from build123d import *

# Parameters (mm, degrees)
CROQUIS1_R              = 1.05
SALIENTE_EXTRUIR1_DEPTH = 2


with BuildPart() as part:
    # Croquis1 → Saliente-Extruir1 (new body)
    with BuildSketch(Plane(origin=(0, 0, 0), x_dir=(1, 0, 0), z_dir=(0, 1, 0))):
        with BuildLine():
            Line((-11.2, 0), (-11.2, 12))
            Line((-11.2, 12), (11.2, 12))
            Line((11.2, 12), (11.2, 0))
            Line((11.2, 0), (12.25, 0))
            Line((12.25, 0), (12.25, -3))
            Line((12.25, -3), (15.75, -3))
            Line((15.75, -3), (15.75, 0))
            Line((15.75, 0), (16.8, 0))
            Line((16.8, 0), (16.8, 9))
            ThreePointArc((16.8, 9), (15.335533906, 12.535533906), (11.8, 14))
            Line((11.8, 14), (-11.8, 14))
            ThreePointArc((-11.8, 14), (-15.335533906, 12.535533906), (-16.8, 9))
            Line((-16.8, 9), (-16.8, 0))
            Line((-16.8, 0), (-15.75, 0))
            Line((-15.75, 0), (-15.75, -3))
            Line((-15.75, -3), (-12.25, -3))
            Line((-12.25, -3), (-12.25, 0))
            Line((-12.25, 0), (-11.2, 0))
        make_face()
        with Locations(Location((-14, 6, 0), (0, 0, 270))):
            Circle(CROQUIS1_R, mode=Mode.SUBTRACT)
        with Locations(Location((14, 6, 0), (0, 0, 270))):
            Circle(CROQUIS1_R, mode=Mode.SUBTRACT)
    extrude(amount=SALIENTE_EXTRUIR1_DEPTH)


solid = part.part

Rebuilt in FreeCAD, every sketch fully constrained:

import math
import FreeCAD as App
import Part
import Sketcher
from FreeCAD import Vector
Q = App.Units.Quantity

doc = App.newDocument("Part")
params = doc.addObject("Spreadsheet::Sheet", "Params")
for row, (alias, value) in enumerate([
    ("sketch1_radius", "5 mm"),
    ("sketch1_diameter", "2.1 mm"),
    ("sketch1_height", "12 mm"),
    ("sketch1_height2", "3 mm"),
    ("sketch1_height3", "9 mm"),
    ("pad1_length", "2 mm"),
], start=1):
    params.set(f"A{row}", alias)
    params.set(f"B{row}", "=" + value)
    params.setAlias(f"B{row}", alias)

body = doc.addObject("PartDesign::Body", "Body")

sketch1 = doc.addObject("Sketcher::SketchObject", "Sketch")
body.addObject(sketch1)
sketch1.AttachmentSupport = (doc.XZ_Plane, [""])
sketch1.MapMode = "FlatFace"
sketch1.addGeometry(Part.LineSegment(Vector(-11.2, 0, 0), Vector(-11.2, -12, 0)), False)
sketch1.addGeometry(Part.LineSegment(Vector(-11.2, -12, 0), Vector(11.2, -12, 0)), False)
sketch1.addGeometry(Part.LineSegment(Vector(11.2, -12, 0), Vector(11.2, 0, 0)), False)
sketch1.addGeometry(Part.LineSegment(Vector(11.2, 0, 0), Vector(12.25, 0, 0)), False)
sketch1.addGeometry(Part.LineSegment(Vector(12.25, 0, 0), Vector(12.25, 3, 0)), False)
sketch1.addGeometry(Part.LineSegment(Vector(12.25, 3, 0), Vector(15.75, 3, 0)), False)
sketch1.addGeometry(Part.LineSegment(Vector(15.75, 3, 0), Vector(15.75, 0, 0)), False)
sketch1.addGeometry(Part.LineSegment(Vector(15.75, 0, 0), Vector(16.8, 0, 0)), False)
sketch1.addGeometry(Part.LineSegment(Vector(16.8, 0, 0), Vector(16.8, -9, 0)), False)
sketch1.addGeometry(Part.ArcOfCircle(Part.Circle(Vector(11.8, -9, 0), Vector(0, 0, 1), 5), math.radians(-90), math.radians(0)), False)
sketch1.addGeometry(Part.LineSegment(Vector(11.8, -14, 0), Vector(-11.8, -14, 0)), False)
sketch1.addGeometry(Part.ArcOfCircle(Part.Circle(Vector(-11.8, -9, 0), Vector(0, 0, 1), 5), math.radians(180), math.radians(270)), False)
sketch1.addGeometry(Part.LineSegment(Vector(-16.8, -9, 0), Vector(-16.8, 0, 0)), False)
sketch1.addGeometry(Part.LineSegment(Vector(-16.8, 0, 0), Vector(-15.75, 0, 0)), False)
sketch1.addGeometry(Part.LineSegment(Vector(-15.75, 0, 0), Vector(-15.75, 3, 0)), False)
sketch1.addGeometry(Part.LineSegment(Vector(-15.75, 3, 0), Vector(-12.25, 3, 0)), False)
sketch1.addGeometry(Part.LineSegment(Vector(-12.25, 3, 0), Vector(-12.25, 0, 0)), False)
sketch1.addGeometry(Part.LineSegment(Vector(-12.25, 0, 0), Vector(-11.2, 0, 0)), False)
sketch1.addGeometry(Part.Circle(Vector(-14, -6, 0), Vector(0, 0, 1), 1.05), False)
sketch1.addGeometry(Part.Circle(Vector(14, -6, 0), Vector(0, 0, 1), 1.05), False)
sketch1.addConstraint(Sketcher.Constraint("Coincident", 0, 2, 1, 1))
sketch1.addConstraint(Sketcher.Constraint("Coincident", 1, 2, 2, 1))
sketch1.addConstraint(Sketcher.Constraint("Coincident", 2, 2, 3, 1))
sketch1.addConstraint(Sketcher.Constraint("Coincident", 3, 2, 4, 1))
sketch1.addConstraint(Sketcher.Constraint("Coincident", 4, 2, 5, 1))
sketch1.addConstraint(Sketcher.Constraint("Coincident", 5, 2, 6, 1))
sketch1.addConstraint(Sketcher.Constraint("Coincident", 6, 2, 7, 1))
sketch1.addConstraint(Sketcher.Constraint("Coincident", 7, 2, 8, 1))
sketch1.addConstraint(Sketcher.Constraint("Tangent", 8, 2, 9, 2))
sketch1.addConstraint(Sketcher.Constraint("Tangent", 9, 1, 10, 1))
sketch1.addConstraint(Sketcher.Constraint("Tangent", 10, 2, 11, 2))
sketch1.addConstraint(Sketcher.Constraint("Tangent", 11, 1, 12, 1))
sketch1.addConstraint(Sketcher.Constraint("Coincident", 12, 2, 13, 1))
sketch1.addConstraint(Sketcher.Constraint("Coincident", 13, 2, 14, 1))
sketch1.addConstraint(Sketcher.Constraint("Coincident", 14, 2, 15, 1))
sketch1.addConstraint(Sketcher.Constraint("Coincident", 15, 2, 16, 1))
sketch1.addConstraint(Sketcher.Constraint("Coincident", 16, 2, 17, 1))
sketch1.addConstraint(Sketcher.Constraint("Coincident", 17, 2, 0, 1))
sketch1.addConstraint(Sketcher.Constraint("Vertical", 0))
sketch1.addConstraint(Sketcher.Constraint("Horizontal", 1))
sketch1.addConstraint(Sketcher.Constraint("Vertical", 2))
sketch1.addConstraint(Sketcher.Constraint("Horizontal", 3))
sketch1.addConstraint(Sketcher.Constraint("Vertical", 4))
sketch1.addConstraint(Sketcher.Constraint("Horizontal", 5))
sketch1.addConstraint(Sketcher.Constraint("Vertical", 6))
sketch1.addConstraint(Sketcher.Constraint("Horizontal", 7))
sketch1.addConstraint(Sketcher.Constraint("Vertical", 8))
sketch1.addConstraint(Sketcher.Constraint("Horizontal", 10))
sketch1.addConstraint(Sketcher.Constraint("Vertical", 12))
sketch1.addConstraint(Sketcher.Constraint("Horizontal", 13))
sketch1.addConstraint(Sketcher.Constraint("Vertical", 14))
sketch1.addConstraint(Sketcher.Constraint("Horizontal", 15))
sketch1.addConstraint(Sketcher.Constraint("Vertical", 16))
sketch1.addConstraint(Sketcher.Constraint("Horizontal", 17))
sketch1.addConstraint(Sketcher.Constraint("Equal", 9, 11))
sketch1.addConstraint(Sketcher.Constraint("Equal", 18, 19))
sketch1.addConstraint(Sketcher.Constraint("Symmetric", 7, 2, 12, 2, -1, 1))
sketch1.addConstraint(Sketcher.Constraint("Symmetric", 3, 2, 16, 2, -1, 1))
sketch1.addConstraint(Sketcher.Constraint("Symmetric", 18, 3, 19, 3, -2))
sketch1.addConstraint(Sketcher.Constraint("Symmetric", 6, 2, 13, 2, -2))
sketch1.addConstraint(Sketcher.Constraint("Symmetric", 2, 2, 17, 2, -2))
sketch1.addConstraint(Sketcher.Constraint("Horizontal", 5, 2, 14, 2))
sketch1.addConstraint(Sketcher.Constraint("Equal", 3, 7))
sketch1.addConstraint(Sketcher.Constraint("Radius", 9, Q("5 mm")))
sketch1.addConstraint(Sketcher.Constraint("Diameter", 18, Q("2.1 mm")))
sketch1.addConstraint(Sketcher.Constraint("DistanceY", 0, 2, 0, 1, Q("12 mm")))
sketch1.addConstraint(Sketcher.Constraint("DistanceY", 4, 1, 4, 2, Q("3 mm")))
sketch1.addConstraint(Sketcher.Constraint("DistanceY", 8, 2, 8, 1, Q("9 mm")))
sketch1.addConstraint(Sketcher.Constraint("DistanceX", 1, 1, 1, 2, Q("22.4 mm")))
sketch1.addConstraint(Sketcher.Constraint("DistanceX", 5, 1, 5, 2, Q("3.5 mm")))
sketch1.addConstraint(Sketcher.Constraint("DistanceX", 10, 2, 10, 1, Q("23.6 mm")))
sketch1.addConstraint(Sketcher.Constraint("DistanceX", 18, 3, -1, 1, Q("14 mm")))
sketch1.addConstraint(Sketcher.Constraint("DistanceY", 18, 3, -1, 1, Q("6 mm")))
sketch1.setExpression("Constraints[43]", "Params.sketch1_radius")
sketch1.setExpression("Constraints[44]", "Params.sketch1_diameter")
sketch1.setExpression("Constraints[45]", "Params.sketch1_height")
sketch1.setExpression("Constraints[46]", "Params.sketch1_height2")
sketch1.setExpression("Constraints[47]", "Params.sketch1_height3")
pad1 = doc.addObject("PartDesign::Pad", "Pad")
body.addObject(pad1)
pad1.Profile = sketch1
pad1.setExpression("Length", "Params.pad1_length")
pad1.Reversed = True

doc.recompute()
